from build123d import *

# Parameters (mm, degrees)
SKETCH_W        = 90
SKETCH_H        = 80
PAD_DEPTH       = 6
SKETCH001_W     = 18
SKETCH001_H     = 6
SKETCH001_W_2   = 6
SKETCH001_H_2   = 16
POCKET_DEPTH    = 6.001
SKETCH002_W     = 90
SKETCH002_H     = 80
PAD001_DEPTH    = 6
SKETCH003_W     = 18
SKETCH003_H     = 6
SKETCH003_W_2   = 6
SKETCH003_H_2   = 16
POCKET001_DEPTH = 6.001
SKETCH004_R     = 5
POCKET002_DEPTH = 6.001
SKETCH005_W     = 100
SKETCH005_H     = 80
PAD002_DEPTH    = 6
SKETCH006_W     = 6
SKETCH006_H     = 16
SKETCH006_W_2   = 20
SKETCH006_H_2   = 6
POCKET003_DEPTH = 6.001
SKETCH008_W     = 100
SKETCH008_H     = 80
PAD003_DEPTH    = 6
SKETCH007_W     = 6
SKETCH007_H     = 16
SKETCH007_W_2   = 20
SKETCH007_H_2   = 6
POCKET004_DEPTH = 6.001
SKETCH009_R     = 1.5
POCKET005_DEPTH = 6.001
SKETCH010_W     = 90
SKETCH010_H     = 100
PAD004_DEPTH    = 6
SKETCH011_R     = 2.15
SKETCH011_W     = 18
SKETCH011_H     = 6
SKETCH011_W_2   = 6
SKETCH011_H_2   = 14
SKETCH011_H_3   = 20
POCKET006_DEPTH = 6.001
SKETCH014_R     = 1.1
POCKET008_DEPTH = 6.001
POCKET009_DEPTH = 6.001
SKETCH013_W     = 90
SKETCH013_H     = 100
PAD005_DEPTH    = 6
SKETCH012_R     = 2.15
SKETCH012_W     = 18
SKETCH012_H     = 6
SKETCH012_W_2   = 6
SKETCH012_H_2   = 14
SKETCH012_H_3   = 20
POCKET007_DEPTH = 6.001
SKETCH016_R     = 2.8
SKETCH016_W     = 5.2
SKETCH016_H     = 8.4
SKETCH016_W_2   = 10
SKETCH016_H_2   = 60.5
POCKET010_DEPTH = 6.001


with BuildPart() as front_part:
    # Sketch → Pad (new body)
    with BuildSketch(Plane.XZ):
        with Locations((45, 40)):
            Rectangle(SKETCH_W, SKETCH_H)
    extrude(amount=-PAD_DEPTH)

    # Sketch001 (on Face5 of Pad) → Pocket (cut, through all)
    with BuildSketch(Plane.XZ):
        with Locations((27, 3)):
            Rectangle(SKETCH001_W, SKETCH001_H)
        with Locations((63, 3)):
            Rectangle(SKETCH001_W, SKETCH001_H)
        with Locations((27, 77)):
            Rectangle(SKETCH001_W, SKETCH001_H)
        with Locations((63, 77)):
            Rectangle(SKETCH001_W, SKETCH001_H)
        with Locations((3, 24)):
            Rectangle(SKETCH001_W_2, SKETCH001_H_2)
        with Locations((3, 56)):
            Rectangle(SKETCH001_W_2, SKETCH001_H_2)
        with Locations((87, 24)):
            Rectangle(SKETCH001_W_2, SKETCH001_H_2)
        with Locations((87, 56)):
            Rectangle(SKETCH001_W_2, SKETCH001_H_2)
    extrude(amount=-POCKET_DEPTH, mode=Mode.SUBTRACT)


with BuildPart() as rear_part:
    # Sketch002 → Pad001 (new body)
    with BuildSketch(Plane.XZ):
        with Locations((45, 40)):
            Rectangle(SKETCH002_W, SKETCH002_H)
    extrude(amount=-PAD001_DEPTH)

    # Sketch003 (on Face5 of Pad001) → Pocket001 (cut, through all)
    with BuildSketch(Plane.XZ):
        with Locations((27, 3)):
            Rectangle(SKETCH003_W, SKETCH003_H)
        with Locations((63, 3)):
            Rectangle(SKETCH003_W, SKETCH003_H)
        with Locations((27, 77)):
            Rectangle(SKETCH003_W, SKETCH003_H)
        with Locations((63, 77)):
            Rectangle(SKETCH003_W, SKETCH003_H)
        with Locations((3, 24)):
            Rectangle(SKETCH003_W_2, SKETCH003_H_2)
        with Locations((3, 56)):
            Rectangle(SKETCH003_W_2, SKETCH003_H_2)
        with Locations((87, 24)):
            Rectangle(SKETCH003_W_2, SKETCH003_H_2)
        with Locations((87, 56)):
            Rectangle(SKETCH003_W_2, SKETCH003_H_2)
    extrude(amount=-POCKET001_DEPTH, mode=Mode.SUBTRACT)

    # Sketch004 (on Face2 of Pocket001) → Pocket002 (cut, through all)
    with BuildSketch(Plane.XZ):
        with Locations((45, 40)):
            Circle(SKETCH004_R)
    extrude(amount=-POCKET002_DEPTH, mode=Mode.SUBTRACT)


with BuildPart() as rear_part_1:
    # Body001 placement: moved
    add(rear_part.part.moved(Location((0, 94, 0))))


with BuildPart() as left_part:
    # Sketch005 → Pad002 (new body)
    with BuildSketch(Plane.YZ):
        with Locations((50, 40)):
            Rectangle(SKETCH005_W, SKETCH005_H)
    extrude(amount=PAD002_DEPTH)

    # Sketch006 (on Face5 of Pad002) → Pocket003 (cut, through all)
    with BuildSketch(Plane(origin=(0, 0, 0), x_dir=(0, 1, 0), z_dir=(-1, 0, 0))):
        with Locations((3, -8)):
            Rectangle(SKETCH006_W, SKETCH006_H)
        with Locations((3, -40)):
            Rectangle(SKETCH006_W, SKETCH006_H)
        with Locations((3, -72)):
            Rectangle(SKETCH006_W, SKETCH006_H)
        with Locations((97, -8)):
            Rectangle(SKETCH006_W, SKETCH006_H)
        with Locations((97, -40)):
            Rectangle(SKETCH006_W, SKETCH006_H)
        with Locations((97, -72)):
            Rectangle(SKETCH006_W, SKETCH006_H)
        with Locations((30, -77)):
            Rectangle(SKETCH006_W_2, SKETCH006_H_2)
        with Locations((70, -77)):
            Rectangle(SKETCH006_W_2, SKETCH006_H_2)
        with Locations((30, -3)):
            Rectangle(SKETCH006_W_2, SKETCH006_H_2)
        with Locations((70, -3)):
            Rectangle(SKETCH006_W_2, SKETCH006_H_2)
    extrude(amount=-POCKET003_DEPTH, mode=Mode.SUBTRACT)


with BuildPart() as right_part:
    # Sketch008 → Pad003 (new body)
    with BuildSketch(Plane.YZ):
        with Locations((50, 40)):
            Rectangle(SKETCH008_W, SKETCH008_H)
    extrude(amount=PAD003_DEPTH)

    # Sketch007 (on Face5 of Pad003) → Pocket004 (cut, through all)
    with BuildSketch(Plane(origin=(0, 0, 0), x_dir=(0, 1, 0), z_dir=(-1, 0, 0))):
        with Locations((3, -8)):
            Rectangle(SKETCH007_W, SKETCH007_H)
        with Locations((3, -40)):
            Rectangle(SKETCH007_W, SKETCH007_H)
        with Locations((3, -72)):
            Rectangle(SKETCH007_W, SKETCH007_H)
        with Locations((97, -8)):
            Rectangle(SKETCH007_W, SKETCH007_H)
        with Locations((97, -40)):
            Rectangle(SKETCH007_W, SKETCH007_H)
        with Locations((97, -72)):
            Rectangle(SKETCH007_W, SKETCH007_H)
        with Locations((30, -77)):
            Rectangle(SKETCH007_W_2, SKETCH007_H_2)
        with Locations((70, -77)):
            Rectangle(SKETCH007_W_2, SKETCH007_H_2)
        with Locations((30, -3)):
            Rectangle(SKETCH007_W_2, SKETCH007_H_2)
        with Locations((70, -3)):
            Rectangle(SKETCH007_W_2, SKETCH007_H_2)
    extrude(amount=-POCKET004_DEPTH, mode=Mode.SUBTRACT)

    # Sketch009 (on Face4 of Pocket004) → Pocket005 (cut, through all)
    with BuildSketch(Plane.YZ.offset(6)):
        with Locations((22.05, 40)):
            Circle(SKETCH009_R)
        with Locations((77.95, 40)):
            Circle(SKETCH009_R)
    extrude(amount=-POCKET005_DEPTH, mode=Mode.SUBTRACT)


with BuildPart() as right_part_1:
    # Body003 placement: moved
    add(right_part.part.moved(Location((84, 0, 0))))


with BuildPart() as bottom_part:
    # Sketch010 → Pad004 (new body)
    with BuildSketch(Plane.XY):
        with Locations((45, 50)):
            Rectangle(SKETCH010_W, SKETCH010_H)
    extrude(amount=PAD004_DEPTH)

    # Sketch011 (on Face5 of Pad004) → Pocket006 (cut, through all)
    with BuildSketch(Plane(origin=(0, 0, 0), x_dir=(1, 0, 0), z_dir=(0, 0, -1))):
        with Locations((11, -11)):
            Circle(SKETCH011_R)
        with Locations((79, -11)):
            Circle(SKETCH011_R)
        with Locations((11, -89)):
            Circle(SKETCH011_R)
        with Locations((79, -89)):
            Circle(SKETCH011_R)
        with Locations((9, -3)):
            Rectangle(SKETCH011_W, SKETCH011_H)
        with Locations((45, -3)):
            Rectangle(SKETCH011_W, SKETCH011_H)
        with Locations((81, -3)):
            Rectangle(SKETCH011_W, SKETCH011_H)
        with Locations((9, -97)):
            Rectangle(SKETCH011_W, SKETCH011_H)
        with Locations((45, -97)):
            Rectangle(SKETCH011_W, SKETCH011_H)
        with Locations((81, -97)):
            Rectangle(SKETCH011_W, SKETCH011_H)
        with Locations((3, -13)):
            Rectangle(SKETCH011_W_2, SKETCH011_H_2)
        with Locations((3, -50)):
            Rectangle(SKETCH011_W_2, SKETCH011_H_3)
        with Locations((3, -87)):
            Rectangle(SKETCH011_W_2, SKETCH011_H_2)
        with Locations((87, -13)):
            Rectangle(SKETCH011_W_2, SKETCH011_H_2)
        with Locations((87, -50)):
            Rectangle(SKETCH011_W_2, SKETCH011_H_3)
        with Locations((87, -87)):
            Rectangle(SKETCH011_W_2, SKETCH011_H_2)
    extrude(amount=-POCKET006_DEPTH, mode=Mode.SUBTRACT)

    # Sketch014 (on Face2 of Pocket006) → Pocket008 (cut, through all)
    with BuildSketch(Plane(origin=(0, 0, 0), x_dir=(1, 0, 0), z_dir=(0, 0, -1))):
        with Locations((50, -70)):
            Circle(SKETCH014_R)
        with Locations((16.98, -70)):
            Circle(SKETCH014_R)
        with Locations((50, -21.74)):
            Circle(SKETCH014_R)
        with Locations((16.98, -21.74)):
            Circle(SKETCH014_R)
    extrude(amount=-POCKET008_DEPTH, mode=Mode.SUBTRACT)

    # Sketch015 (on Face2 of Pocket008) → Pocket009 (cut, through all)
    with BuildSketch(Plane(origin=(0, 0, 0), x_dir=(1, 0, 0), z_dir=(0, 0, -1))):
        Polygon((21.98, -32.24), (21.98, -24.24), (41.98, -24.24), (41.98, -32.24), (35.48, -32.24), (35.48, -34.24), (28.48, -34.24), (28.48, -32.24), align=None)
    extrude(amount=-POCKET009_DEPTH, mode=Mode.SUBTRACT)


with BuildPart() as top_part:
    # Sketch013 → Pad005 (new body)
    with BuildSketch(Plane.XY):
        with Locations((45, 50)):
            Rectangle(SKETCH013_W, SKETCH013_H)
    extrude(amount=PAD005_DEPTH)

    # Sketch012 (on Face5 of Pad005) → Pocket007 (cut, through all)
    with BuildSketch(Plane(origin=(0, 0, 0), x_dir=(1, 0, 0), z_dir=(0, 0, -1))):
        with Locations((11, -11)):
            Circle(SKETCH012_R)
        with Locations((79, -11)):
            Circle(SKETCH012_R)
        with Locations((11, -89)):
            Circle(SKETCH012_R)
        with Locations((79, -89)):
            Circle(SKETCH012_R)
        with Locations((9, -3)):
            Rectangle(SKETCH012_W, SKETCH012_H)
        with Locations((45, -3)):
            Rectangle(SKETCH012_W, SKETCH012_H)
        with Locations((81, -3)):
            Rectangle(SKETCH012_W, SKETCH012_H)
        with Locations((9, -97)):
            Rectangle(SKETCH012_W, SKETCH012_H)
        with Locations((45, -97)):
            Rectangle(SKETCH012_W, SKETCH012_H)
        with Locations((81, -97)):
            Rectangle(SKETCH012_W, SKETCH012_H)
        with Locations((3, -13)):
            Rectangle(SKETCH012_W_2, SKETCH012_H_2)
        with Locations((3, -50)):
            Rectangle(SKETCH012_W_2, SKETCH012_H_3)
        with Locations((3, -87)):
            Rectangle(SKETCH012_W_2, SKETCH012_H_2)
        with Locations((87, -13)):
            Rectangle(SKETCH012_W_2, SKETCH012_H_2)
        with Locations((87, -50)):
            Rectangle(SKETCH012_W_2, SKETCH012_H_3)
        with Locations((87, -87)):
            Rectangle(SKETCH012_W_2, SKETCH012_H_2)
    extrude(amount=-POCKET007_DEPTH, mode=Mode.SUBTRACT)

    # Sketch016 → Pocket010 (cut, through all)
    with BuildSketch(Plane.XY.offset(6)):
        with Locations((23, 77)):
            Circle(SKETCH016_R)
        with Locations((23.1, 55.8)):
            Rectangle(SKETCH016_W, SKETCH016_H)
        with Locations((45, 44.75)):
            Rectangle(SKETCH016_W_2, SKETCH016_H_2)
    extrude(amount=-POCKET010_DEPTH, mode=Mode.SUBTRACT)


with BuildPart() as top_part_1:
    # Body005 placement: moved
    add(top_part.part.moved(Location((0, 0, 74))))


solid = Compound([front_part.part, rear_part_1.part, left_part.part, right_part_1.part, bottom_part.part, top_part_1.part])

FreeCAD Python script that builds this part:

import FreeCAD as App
import Part
import Sketcher


def add_polygon(sketch, points):
    """Adds a closed chain of lines whose ends are joined by coincident constraints."""
    first, n = sketch.GeometryCount, len(points)
    for a, b in zip(points, points[1:] + points[:1]):
        sketch.addGeometry(Part.LineSegment(App.Vector(*a, 0), App.Vector(*b, 0)), False)
    for i in range(n):
        sketch.addConstraint(Sketcher.Constraint("Coincident", first + i, 2, first + (i + 1) % n, 1))

doc = App.newDocument("Part")
body = doc.addObject("PartDesign::Body", "Body")

sketch1 = body.newObject("Sketcher::SketchObject", "Sketch")
sketch1.AttachmentSupport = (doc.getObject("XZ_Plane"), [""])
sketch1.MapMode = "FlatFace"
add_polygon(sketch1, [(0, 80), (0, 0), (90, 0), (90, 80)])
sketch1.addConstraint([
    Sketcher.Constraint("Vertical", 0),
    Sketcher.Constraint("Horizontal", 1),
    Sketcher.Constraint("Vertical", 2),
    Sketcher.Constraint("Horizontal", 3),
    Sketcher.Constraint("Coincident", 0, 2, -1, 1),
    Sketcher.Constraint("DistanceX", 1, 1, 1, 2, 90.0),
    Sketcher.Constraint("DistanceY", 0, 2, 0, 1, 80.0),
])
pad1 = body.newObject("PartDesign::Pad", "Pad")
pad1.Profile = sketch1
pad1.Length = 6
pad1.Reversed = True

sketch2 = body.newObject("Sketcher::SketchObject", "Sketch001")
sketch2.AttachmentSupport = (doc.getObject("XZ_Plane"), [""])
sketch2.MapMode = "FlatFace"
add_polygon(sketch2, [(18, 6), (18, 0), (36, 0), (36, 6)])
add_polygon(sketch2, [(54, 6), (54, 0), (72, 0), (72, 6)])
add_polygon(sketch2, [(18, 80), (18, 74), (36, 74), (36, 80)])
add_polygon(sketch2, [(54, 80), (54, 74), (72, 74), (72, 80)])
add_polygon(sketch2, [(0, 32), (0, 16), (6, 16), (6, 32)])
add_polygon(sketch2, [(0, 64), (0, 48), (6, 48), (6, 64)])
add_polygon(sketch2, [(84, 32), (84, 16), (90, 16), (90, 32)])
add_polygon(sketch2, [(84, 64), (84, 48), (90, 48), (90, 64)])
sketch2.addConstraint([
    Sketcher.Constraint("Vertical", 0),
    Sketcher.Constraint("Horizontal", 1),
    Sketcher.Constraint("Vertical", 2),
    Sketcher.Constraint("Horizontal", 3),
    Sketcher.Constraint("Vertical", 4),
    Sketcher.Constraint("Horizontal", 5),
    Sketcher.Constraint("Vertical", 6),
    Sketcher.Constraint("Horizontal", 7),
    Sketcher.Constraint("Vertical", 8),
    Sketcher.Constraint("Horizontal", 9),
    Sketcher.Constraint("Vertical", 10),
    Sketcher.Constraint("Horizontal", 11),
    Sketcher.Constraint("Vertical", 12),
    Sketcher.Constraint("Horizontal", 13),
    Sketcher.Constraint("Vertical", 14),
    Sketcher.Constraint("Horizontal", 15),
    Sketcher.Constraint("Vertical", 16),
    Sketcher.Constraint("Horizontal", 17),
    Sketcher.Constraint("Vertical", 18),
    Sketcher.Constraint("Horizontal", 19),
    Sketcher.Constraint("Vertical", 20),
    Sketcher.Constraint("Horizontal", 21),
    Sketcher.Constraint("Vertical", 22),
    Sketcher.Constraint("Horizontal", 23),
    Sketcher.Constraint("Vertical", 24),
    Sketcher.Constraint("Horizontal", 25),
    Sketcher.Constraint("Vertical", 26),
    Sketcher.Constraint("Horizontal", 27),
    Sketcher.Constraint("Vertical", 28),
    Sketcher.Constraint("Horizontal", 29),
    Sketcher.Constraint("Vertical", 30),
    Sketcher.Constraint("Horizontal", 31),
    Sketcher.Constraint("PointOnObject", 0, 2, -1),
    Sketcher.Constraint("PointOnObject", 4, 2, -1),
    Sketcher.Constraint("PointOnObject", 16, 2, -2),
    Sketcher.Constraint("PointOnObject", 20, 2, -2),
    Sketcher.Constraint("Horizontal", 3, 2, 6, 2),
    Sketcher.Constraint("Horizontal", 9, 2, 12, 2),
    Sketcher.Constraint("Horizontal", 11, 2, 14, 2),
    Sketcher.Constraint("Horizontal", 17, 2, 24, 2),
    Sketcher.Constraint("Horizontal", 19, 2, 26, 2),
    Sketcher.Constraint("Horizontal", 21, 2, 28, 2),
    Sketcher.Constraint("Horizontal", 23, 2, 30, 2),
    Sketcher.Constraint("Vertical", 3, 2, 8, 2),
    Sketcher.Constraint("Vertical", 2, 2, 9, 2),
    Sketcher.Constraint("Vertical", 7, 2, 12, 2),
    Sketcher.Constraint("Vertical", 6, 2, 13, 2),
    Sketcher.Constraint("Vertical", 18, 2, 21, 2),
    Sketcher.Constraint("Vertical", 27, 2, 28, 2),
    Sketcher.Constraint("Vertical", 26, 2, 29, 2),
    Sketcher.Constraint("Equal", 3, 5),
    Sketcher.Constraint("Equal", 23, 25),
    Sketcher.Constraint("Equal", 31, 0),
    Sketcher.Constraint("Equal", 6, 8),
    Sketcher.Constraint("Equal", 18, 20),
    Sketcher.Constraint("DistanceX", 1, 1, 1, 2, 18.0),
    Sketcher.Constraint("DistanceX", 17, 1, 17, 2, 6.0),
    Sketcher.Constraint("DistanceY", 16, 2, 16, 1, 16.0),
    Sketcher.Constraint("DistanceX", -1, 1, 0, 2, 18.0),
    Sketcher.Constraint("DistanceX", -1, 1, 4, 2, 54.0),
    Sketcher.Constraint("DistanceY", -1, 1, 8, 2, 74.0),
    Sketcher.Constraint("DistanceY", -1, 1, 16, 2, 16.0),
    Sketcher.Constraint("DistanceY", -1, 1, 20, 2, 48.0),
    Sketcher.Constraint("DistanceX", -1, 1, 24, 2, 84.0),
])
pocket1 = body.newObject("PartDesign::Pocket", "Pocket")
pocket1.Profile = sketch2
pocket1.Type = "ThroughAll"
body2 = doc.addObject("PartDesign::Body", "Body001")

sketch3 = body2.newObject("Sketcher::SketchObject", "Sketch002")
sketch3.AttachmentSupport = (doc.getObject("XZ_Plane001"), [""])
sketch3.MapMode = "FlatFace"
add_polygon(sketch3, [(0, 80), (0, 0), (90, 0), (90, 80)])
sketch3.addConstraint([
    Sketcher.Constraint("Vertical", 0),
    Sketcher.Constraint("Horizontal", 1),
    Sketcher.Constraint("Vertical", 2),
    Sketcher.Constraint("Horizontal", 3),
    Sketcher.Constraint("Coincident", 0, 2, -1, 1),
    Sketcher.Constraint("DistanceX", 1, 1, 1, 2, 90.0),
    Sketcher.Constraint("DistanceY", 0, 2, 0, 1, 80.0),
])
pad2 = body2.newObject("PartDesign::Pad", "Pad001")
pad2.Profile = sketch3
pad2.Length = 6
pad2.Reversed = True

sketch4 = body2.newObject("Sketcher::SketchObject", "Sketch003")
sketch4.AttachmentSupport = (doc.getObject("XZ_Plane001"), [""])
sketch4.MapMode = "FlatFace"
add_polygon(sketch4, [(18, 6), (18, 0), (36, 0), (36, 6)])
add_polygon(sketch4, [(54, 6), (54, 0), (72, 0), (72, 6)])
add_polygon(sketch4, [(18, 80), (18, 74), (36, 74), (36, 80)])
add_polygon(sketch4, [(54, 80), (54, 74), (72, 74), (72, 80)])
add_polygon(sketch4, [(0, 32), (0, 16), (6, 16), (6, 32)])
add_polygon(sketch4, [(0, 64), (0, 48), (6, 48), (6, 64)])
add_polygon(sketch4, [(84, 32), (84, 16), (90, 16), (90, 32)])
add_polygon(sketch4, [(84, 64), (84, 48), (90, 48), (90, 64)])
sketch4.addConstraint([
    Sketcher.Constraint("Vertical", 0),
    Sketcher.Constraint("Horizontal", 1),
    Sketcher.Constraint("Vertical", 2),
    Sketcher.Constraint("Horizontal", 3),
    Sketcher.Constraint("Vertical", 4),
    Sketcher.Constraint("Horizontal", 5),
    Sketcher.Constraint("Vertical", 6),
    Sketcher.Constraint("Horizontal", 7),
    Sketcher.Constraint("Vertical", 8),
    Sketcher.Constraint("Horizontal", 9),
    Sketcher.Constraint("Vertical", 10),
    Sketcher.Constraint("Horizontal", 11),
    Sketcher.Constraint("Vertical", 12),
    Sketcher.Constraint("Horizontal", 13),
    Sketcher.Constraint("Vertical", 14),
    Sketcher.Constraint("Horizontal", 15),
    Sketcher.Constraint("Vertical", 16),
    Sketcher.Constraint("Horizontal", 17),
    Sketcher.Constraint("Vertical", 18),
    Sketcher.Constraint("Horizontal", 19),
    Sketcher.Constraint("Vertical", 20),
    Sketcher.Constraint("Horizontal", 21),
    Sketcher.Constraint("Vertical", 22),
    Sketcher.Constraint("Horizontal", 23),
    Sketcher.Constraint("Vertical", 24),
    Sketcher.Constraint("Horizontal", 25),
    Sketcher.Constraint("Vertical", 26),
    Sketcher.Constraint("Horizontal", 27),
    Sketcher.Constraint("Vertical", 28),
    Sketcher.Constraint("Horizontal", 29),
    Sketcher.Constraint("Vertical", 30),
    Sketcher.Constraint("Horizontal", 31),
    Sketcher.Constraint("PointOnObject", 0, 2, -1),
    Sketcher.Constraint("PointOnObject", 4, 2, -1),
    Sketcher.Constraint("PointOnObject", 16, 2, -2),
    Sketcher.Constraint("PointOnObject", 20, 2, -2),
    Sketcher.Constraint("Horizontal", 3, 2, 6, 2),
    Sketcher.Constraint("Horizontal", 9, 2, 12, 2),
    Sketcher.Constraint("Horizontal", 11, 2, 14, 2),
    Sketcher.Constraint("Horizontal", 17, 2, 24, 2),
    Sketcher.Constraint("Horizontal", 19, 2, 26, 2),
    Sketcher.Constraint("Horizontal", 21, 2, 28, 2),
    Sketcher.Constraint("Horizontal", 23, 2, 30, 2),
    Sketcher.Constraint("Vertical", 3, 2, 8, 2),
    Sketcher.Constraint("Vertical", 2, 2, 9, 2),
    Sketcher.Constraint("Vertical", 7, 2, 12, 2),
    Sketcher.Constraint("Vertical", 6, 2, 13, 2),
    Sketcher.Constraint("Vertical", 18, 2, 21, 2),
    Sketcher.Constraint("Vertical", 27, 2, 28, 2),
    Sketcher.Constraint("Vertical", 26, 2, 29, 2),
    Sketcher.Constraint("Equal", 3, 5),
    Sketcher.Constraint("Equal", 23, 25),
    Sketcher.Constraint("Equal", 31, 0),
    Sketcher.Constraint("Equal", 6, 8),
    Sketcher.Constraint("Equal", 18, 20),
    Sketcher.Constraint("DistanceX", 1, 1, 1, 2, 18.0),
    Sketcher.Constraint("DistanceX", 17, 1, 17, 2, 6.0),
    Sketcher.Constraint("DistanceY", 16, 2, 16, 1, 16.0),
    Sketcher.Constraint("DistanceX", -1, 1, 0, 2, 18.0),
    Sketcher.Constraint("DistanceX", -1, 1, 4, 2, 54.0),
    Sketcher.Constraint("DistanceY", -1, 1, 8, 2, 74.0),
    Sketcher.Constraint("DistanceY", -1, 1, 16, 2, 16.0),
    Sketcher.Constraint("DistanceY", -1, 1, 20, 2, 48.0),
    Sketcher.Constraint("DistanceX", -1, 1, 24, 2, 84.0),
])
pocket2 = body2.newObject("PartDesign::Pocket", "Pocket001")
pocket2.Profile = sketch4
pocket2.Type = "ThroughAll"

sketch5 = body2.newObject("Sketcher::SketchObject", "Sketch004")
sketch5.AttachmentSupport = (doc.getObject("XZ_Plane001"), [""])
sketch5.MapMode = "FlatFace"
sketch5.addGeometry(Part.Circle(App.Vector(45, 40, 0), App.Vector(0, 0, 1), 5), False)
sketch5.addConstraint([
    Sketcher.Constraint("Diameter", 0, 10.0),
    Sketcher.Constraint("DistanceX", -1, 1, 0, 3, 45.0),
    Sketcher.Constraint("DistanceY", -1, 1, 0, 3, 40.0),
])
pocket3 = body2.newObject("PartDesign::Pocket", "Pocket002")
pocket3.Profile = sketch5
pocket3.Type = "ThroughAll"
body3 = doc.addObject("PartDesign::Body", "Body002")
doc.recompute()

body2.Placement = App.Placement(App.Vector(0, 94, 0), App.Rotation(App.Vector(0, 0, 1), 0))
boolean = body3.newObject("PartDesign::Boolean", "Boolean")
boolean.Type = "Fuse"
boolean.addObjects([body2])
body4 = doc.addObject("PartDesign::Body", "Body003")

sketch6 = body4.newObject("Sketcher::SketchObject", "Sketch005")
sketch6.AttachmentSupport = (doc.getObject("YZ_Plane003"), [""])
sketch6.MapMode = "FlatFace"
add_polygon(sketch6, [(0, 80), (0, 0), (100, 0), (100, 80)])
sketch6.addConstraint([
    Sketcher.Constraint("Vertical", 0),
    Sketcher.Constraint("Horizontal", 1),
    Sketcher.Constraint("Vertical", 2),
    Sketcher.Constraint("Horizontal", 3),
    Sketcher.Constraint("Coincident", 0, 2, -1, 1),
    Sketcher.Constraint("DistanceX", 1, 1, 1, 2, 100.0),
    Sketcher.Constraint("DistanceY", 0, 2, 0, 1, 80.0),
])
pad3 = body4.newObject("PartDesign::Pad", "Pad002")
pad3.Profile = sketch6
pad3.Length = 6

sketch7 = body4.newObject("Sketcher::SketchObject", "Sketch006")
sketch7.AttachmentSupport = (doc.getObject("YZ_Plane003"), [""])
sketch7.MapMode = "FlatFace"
add_polygon(sketch7, [(0, 0), (0, 16), (6, 16), (6, 0)])
add_polygon(sketch7, [(0, 32), (0, 48), (6, 48), (6, 32)])
add_polygon(sketch7, [(0, 64), (0, 80), (6, 80), (6, 64)])
add_polygon(sketch7, [(94, 0), (94, 16), (100, 16), (100, 0)])
add_polygon(sketch7, [(94, 32), (94, 48), (100, 48), (100, 32)])
add_polygon(sketch7, [(94, 64), (94, 80), (100, 80), (100, 64)])
add_polygon(sketch7, [(20, 74), (20, 80), (40, 80), (40, 74)])
add_polygon(sketch7, [(60, 74), (60, 80), (80, 80), (80, 74)])
add_polygon(sketch7, [(20, 0), (20, 6), (40, 6), (40, 0)])
add_polygon(sketch7, [(60, 0), (60, 6), (80, 6), (80, 0)])
sketch7.addConstraint([
    Sketcher.Constraint("Vertical", 0),
    Sketcher.Constraint("Horizontal", 1),
    Sketcher.Constraint("Vertical", 2),
    Sketcher.Constraint("Horizontal", 3),
    Sketcher.Constraint("Vertical", 4),
    Sketcher.Constraint("Horizontal", 5),
    Sketcher.Constraint("Vertical", 6),
    Sketcher.Constraint("Horizontal", 7),
    Sketcher.Constraint("Vertical", 8),
    Sketcher.Constraint("Horizontal", 9),
    Sketcher.Constraint("Vertical", 10),
    Sketcher.Constraint("Horizontal", 11),
    Sketcher.Constraint("Vertical", 12),
    Sketcher.Constraint("Horizontal", 13),
    Sketcher.Constraint("Vertical", 14),
    Sketcher.Constraint("Horizontal", 15),
    Sketcher.Constraint("Vertical", 16),
    Sketcher.Constraint("Horizontal", 17),
    Sketcher.Constraint("Vertical", 18),
    Sketcher.Constraint("Horizontal", 19),
    Sketcher.Constraint("Vertical", 20),
    Sketcher.Constraint("Horizontal", 21),
    Sketcher.Constraint("Vertical", 22),
    Sketcher.Constraint("Horizontal", 23),
    Sketcher.Constraint("Vertical", 24),
    Sketcher.Constraint("Horizontal", 25),
    Sketcher.Constraint("Vertical", 26),
    Sketcher.Constraint("Horizontal", 27),
    Sketcher.Constraint("Vertical", 28),
    Sketcher.Constraint("Horizontal", 29),
    Sketcher.Constraint("Vertical", 30),
    Sketcher.Constraint("Horizontal", 31),
    Sketcher.Constraint("Vertical", 32),
    Sketcher.Constraint("Horizontal", 33),
    Sketcher.Constraint("Vertical", 34),
    Sketcher.Constraint("Horizontal", 35),
    Sketcher.Constraint("Vertical", 36),
    Sketcher.Constraint("Horizontal", 37),
    Sketcher.Constraint("Vertical", 38),
    Sketcher.Constraint("Horizontal", 39),
    Sketcher.Constraint("Coincident", 3, 2, -1, 1),
    Sketcher.Constraint("PointOnObject", 4, 2, -2),
    Sketcher.Constraint("PointOnObject", 8, 2, -2),
    Sketcher.Constraint("PointOnObject", 14, 2, -1),
    Sketcher.Constraint("PointOnObject", 34, 2, -1),
    Sketcher.Constraint("PointOnObject", 38, 2, -1),
    Sketcher.Constraint("Horizontal", 1, 2, 12, 2),
    Sketcher.Constraint("Horizontal", 5, 2, 16, 2),
    Sketcher.Constraint("Horizontal", 7, 2, 18, 2),
    Sketcher.Constraint("Horizontal", 9, 2, 20, 2),
    Sketcher.Constraint("Horizontal", 11, 2, 22, 2),
    Sketcher.Constraint("Horizontal", 21, 2, 24, 2),
    Sketcher.Constraint("Horizontal", 25, 2, 28, 2),
    Sketcher.Constraint("Horizontal", 27, 2, 30, 2),
    Sketcher.Constraint("Horizontal", 33, 2, 36, 2),
    Sketcher.Constraint("Vertical", 2, 2, 5, 2),
    Sketcher.Constraint("Vertical", 6, 2, 9, 2),
    Sketcher.Constraint("Vertical", 15, 2, 16, 2),
    Sketcher.Constraint("Vertical", 14, 2, 17, 2),
    Sketcher.Constraint("Vertical", 19, 2, 20, 2),
    Sketcher.Constraint("Vertical", 18, 2, 21, 2),
    Sketcher.Constraint("Vertical", 27, 2, 32, 2),
    Sketcher.Constraint("Vertical", 26, 2, 33, 2),
    Sketcher.Constraint("Vertical", 31, 2, 36, 2),
    Sketcher.Constraint("Vertical", 30, 2, 37, 2),
    Sketcher.Constraint("Equal", 11, 13),
    Sketcher.Constraint("Equal", 27, 29),
    Sketcher.Constraint("Equal", 2, 4),
    Sketcher.Constraint("Equal", 6, 8),
    Sketcher.Constraint("Equal", 23, 24),
    Sketcher.Constraint("Equal", 30, 32),
    Sketcher.Constraint("DistanceX", 1, 1, 1, 2, 6.0),
    Sketcher.Constraint("DistanceX", 25, 1, 25, 2, 20.0),
    Sketcher.Constraint("DistanceY", 0, 1, 0, 2, 16.0),
    Sketcher.Constraint("DistanceY", -1, 1, 4, 2, 48.0),
    Sketcher.Constraint("DistanceY", -1, 1, 8, 2, 80.0),
    Sketcher.Constraint("DistanceX", -1, 1, 12, 2, 94.0),
    Sketcher.Constraint("DistanceX", -1, 1, 24, 2, 20.0),
    Sketcher.Constraint("DistanceX", -1, 1, 28, 2, 60.0),
])
pocket4 = body4.newObject("PartDesign::Pocket", "Pocket003")
pocket4.Profile = sketch7
pocket4.Type = "ThroughAll"
pocket4.Reversed = True
body5 = doc.addObject("PartDesign::Body", "Body004")

sketch8 = body5.newObject("Sketcher::SketchObject", "Sketch007")
sketch8.AttachmentSupport = (doc.getObject("YZ_Plane004"), [""])
sketch8.MapMode = "FlatFace"
add_polygon(sketch8, [(0, 80), (0, 0), (100, 0), (100, 80)])
sketch8.addConstraint([
    Sketcher.Constraint("Vertical", 0),
    Sketcher.Constraint("Horizontal", 1),
    Sketcher.Constraint("Vertical", 2),
    Sketcher.Constraint("Horizontal", 3),
    Sketcher.Constraint("Coincident", 0, 2, -1, 1),
    Sketcher.Constraint("DistanceX", 1, 1, 1, 2, 100.0),
    Sketcher.Constraint("DistanceY", 0, 2, 0, 1, 80.0),
])
pad4 = body5.newObject("PartDesign::Pad", "Pad003")
pad4.Profile = sketch8
pad4.Length = 6

sketch9 = body5.newObject("Sketcher::SketchObject", "Sketch008")
sketch9.AttachmentSupport = (doc.getObject("YZ_Plane004"), [""])
sketch9.MapMode = "FlatFace"
add_polygon(sketch9, [(0, 0), (0, 16), (6, 16), (6, 0)])
add_polygon(sketch9, [(0, 32), (0, 48), (6, 48), (6, 32)])
add_polygon(sketch9, [(0, 64), (0, 80), (6, 80), (6, 64)])
add_polygon(sketch9, [(94, 0), (94, 16), (100, 16), (100, 0)])
add_polygon(sketch9, [(94, 32), (94, 48), (100, 48), (100, 32)])
add_polygon(sketch9, [(94, 64), (94, 80), (100, 80), (100, 64)])
add_polygon(sketch9, [(20, 74), (20, 80), (40, 80), (40, 74)])
add_polygon(sketch9, [(60, 74), (60, 80), (80, 80), (80, 74)])
add_polygon(sketch9, [(20, 0), (20, 6), (40, 6), (40, 0)])
add_polygon(sketch9, [(60, 0), (60, 6), (80, 6), (80, 0)])
sketch9.addConstraint([
    Sketcher.Constraint("Vertical", 0),
    Sketcher.Constraint("Horizontal", 1),
    Sketcher.Constraint("Vertical", 2),
    Sketcher.Constraint("Horizontal", 3),
    Sketcher.Constraint("Vertical", 4),
    Sketcher.Constraint("Horizontal", 5),
    Sketcher.Constraint("Vertical", 6),
    Sketcher.Constraint("Horizontal", 7),
    Sketcher.Constraint("Vertical", 8),
    Sketcher.Constraint("Horizontal", 9),
    Sketcher.Constraint("Vertical", 10),
    Sketcher.Constraint("Horizontal", 11),
    Sketcher.Constraint("Vertical", 12),
    Sketcher.Constraint("Horizontal", 13),
    Sketcher.Constraint("Vertical", 14),
    Sketcher.Constraint("Horizontal", 15),
    Sketcher.Constraint("Vertical", 16),
    Sketcher.Constraint("Horizontal", 17),
    Sketcher.Constraint("Vertical", 18),
    Sketcher.Constraint("Horizontal", 19),
    Sketcher.Constraint("Vertical", 20),
    Sketcher.Constraint("Horizontal", 21),
    Sketcher.Constraint("Vertical", 22),
    Sketcher.Constraint("Horizontal", 23),
    Sketcher.Constraint("Vertical", 24),
    Sketcher.Constraint("Horizontal", 25),
    Sketcher.Constraint("Vertical", 26),
    Sketcher.Constraint("Horizontal", 27),
    Sketcher.Constraint("Vertical", 28),
    Sketcher.Constraint("Horizontal", 29),
    Sketcher.Constraint("Vertical", 30),
    Sketcher.Constraint("Horizontal", 31),
    Sketcher.Constraint("Vertical", 32),
    Sketcher.Constraint("Horizontal", 33),
    Sketcher.Constraint("Vertical", 34),
    Sketcher.Constraint("Horizontal", 35),
    Sketcher.Constraint("Vertical", 36),
    Sketcher.Constraint("Horizontal", 37),
    Sketcher.Constraint("Vertical", 38),
    Sketcher.Constraint("Horizontal", 39),
    Sketcher.Constraint("Coincident", 3, 2, -1, 1),
    Sketcher.Constraint("PointOnObject", 4, 2, -2),
    Sketcher.Constraint("PointOnObject", 8, 2, -2),
    Sketcher.Constraint("PointOnObject", 14, 2, -1),
    Sketcher.Constraint("PointOnObject", 34, 2, -1),
    Sketcher.Constraint("PointOnObject", 38, 2, -1),
    Sketcher.Constraint("Horizontal", 1, 2, 12, 2),
    Sketcher.Constraint("Horizontal", 5, 2, 16, 2),
    Sketcher.Constraint("Horizontal", 7, 2, 18, 2),
    Sketcher.Constraint("Horizontal", 9, 2, 20, 2),
    Sketcher.Constraint("Horizontal", 11, 2, 22, 2),
    Sketcher.Constraint("Horizontal", 21, 2, 24, 2),
    Sketcher.Constraint("Horizontal", 25, 2, 28, 2),
    Sketcher.Constraint("Horizontal", 27, 2, 30, 2),
    Sketcher.Constraint("Horizontal", 33, 2, 36, 2),
    Sketcher.Constraint("Vertical", 2, 2, 5, 2),
    Sketcher.Constraint("Vertical", 6, 2, 9, 2),
    Sketcher.Constraint("Vertical", 15, 2, 16, 2),
    Sketcher.Constraint("Vertical", 14, 2, 17, 2),
    Sketcher.Constraint("Vertical", 19, 2, 20, 2),
    Sketcher.Constraint("Vertical", 18, 2, 21, 2),
    Sketcher.Constraint("Vertical", 27, 2, 32, 2),
    Sketcher.Constraint("Vertical", 26, 2, 33, 2),
    Sketcher.Constraint("Vertical", 31, 2, 36, 2),
    Sketcher.Constraint("Vertical", 30, 2, 37, 2),
    Sketcher.Constraint("Equal", 11, 13),
    Sketcher.Constraint("Equal", 27, 29),
    Sketcher.Constraint("Equal", 2, 4),
    Sketcher.Constraint("Equal", 6, 8),
    Sketcher.Constraint("Equal", 23, 24),
    Sketcher.Constraint("Equal", 30, 32),
    Sketcher.Constraint("DistanceX", 1, 1, 1, 2, 6.0),
    Sketcher.Constraint("DistanceX", 25, 1, 25, 2, 20.0),
    Sketcher.Constraint("DistanceY", 0, 1, 0, 2, 16.0),
    Sketcher.Constraint("DistanceY", -1, 1, 4, 2, 48.0),
    Sketcher.Constraint("DistanceY", -1, 1, 8, 2, 80.0),
    Sketcher.Constraint("DistanceX", -1, 1, 12, 2, 94.0),
    Sketcher.Constraint("DistanceX", -1, 1, 24, 2, 20.0),
    Sketcher.Constraint("DistanceX", -1, 1, 28, 2, 60.0),
])
pocket5 = body5.newObject("PartDesign::Pocket", "Pocket004")
pocket5.Profile = sketch9
pocket5.Type = "ThroughAll"
pocket5.Reversed = True

sketch10 = body5.newObject("Sketcher::SketchObject", "Sketch009")
sketch10.AttachmentSupport = (doc.getObject("YZ_Plane004"), [""])
sketch10.MapMode = "FlatFace"
sketch10.AttachmentOffset = App.Placement(App.Vector(0, 0, 6), App.Rotation())
sketch10.addGeometry([
    Part.Circle(App.Vector(22.05, 40, 0), App.Vector(0, 0, 1), 1.5),
    Part.Circle(App.Vector(77.95, 40, 0), App.Vector(0, 0, 1), 1.5),
], False)
sketch10.addConstraint([
    Sketcher.Constraint("Equal", 0, 1),
    Sketcher.Constraint("Horizontal", 0, 3, 1, 3),
    Sketcher.Constraint("Diameter", 0, 3.0),
    Sketcher.Constraint("DistanceY", -1, 1, 0, 3, 40.0),
    Sketcher.Constraint("DistanceX", 0, 3, 1, 3, 55.9),
    Sketcher.Constraint("DistanceX", -1, 1, 0, 3, 22.05),
])
pocket6 = body5.newObject("PartDesign::Pocket", "Pocket005")
pocket6.Profile = sketch10
pocket6.Type = "ThroughAll"
body6 = doc.addObject("PartDesign::Body", "Body005")
doc.recompute()

body5.Placement = App.Placement(App.Vector(84, 0, 0), App.Rotation(App.Vector(0, 0, 1), 0))
boolean2 = body6.newObject("PartDesign::Boolean", "Boolean001")
boolean2.Type = "Fuse"
boolean2.addObjects([body5])
body7 = doc.addObject("PartDesign::Body", "Body006")

sketch11 = body7.newObject("Sketcher::SketchObject", "Sketch010")
sketch11.AttachmentSupport = (doc.getObject("XY_Plane006"), [""])
sketch11.MapMode = "FlatFace"
add_polygon(sketch11, [(0, 100), (0, 0), (90, 0), (90, 100)])
sketch11.addConstraint([
    Sketcher.Constraint("Vertical", 0),
    Sketcher.Constraint("Horizontal", 1),
    Sketcher.Constraint("Vertical", 2),
    Sketcher.Constraint("Horizontal", 3),
    Sketcher.Constraint("Coincident", 0, 2, -1, 1),
    Sketcher.Constraint("DistanceX", 1, 1, 1, 2, 90.0),
    Sketcher.Constraint("DistanceY", 0, 2, 0, 1, 100.0),
])
pad5 = body7.newObject("PartDesign::Pad", "Pad004")
pad5.Profile = sketch11
pad5.Length = 6

sketch12 = body7.newObject("Sketcher::SketchObject", "Sketch011")
sketch12.AttachmentSupport = (doc.getObject("XY_Plane006"), [""])
sketch12.MapMode = "FlatFace"
sketch12.addGeometry(Part.Circle(App.Vector(11, 11, 0), App.Vector(0, 0, 1), 2.15), False)
sketch12.addGeometry(Part.Circle(App.Vector(79, 11, 0), App.Vector(0, 0, 1), 2.15), False)
sketch12.addGeometry(Part.Circle(App.Vector(11, 89, 0), App.Vector(0, 0, 1), 2.15), False)
sketch12.addGeometry(Part.Circle(App.Vector(79, 89, 0), App.Vector(0, 0, 1), 2.15), False)
add_polygon(sketch12, [(0, 0), (0, 20), (6, 20), (6, 6), (18, 6), (18, 0)])
add_polygon(sketch12, [(36, 0), (36, 6), (54, 6), (54, 0)])
add_polygon(sketch12, [(72, 0), (72, 6), (84, 6), (84, 20), (90, 20), (90, 0)])
add_polygon(sketch12, [(0, 100), (18, 100), (18, 94), (6, 94), (6, 80), (0, 80)])
add_polygon(sketch12, [(36, 94), (36, 100), (54, 100), (54, 94)])
add_polygon(sketch12, [(72, 94), (72, 100), (90, 100), (90, 80), (84, 80), (84, 94)])
add_polygon(sketch12, [(0, 40), (0, 60), (6, 60), (6, 40)])
add_polygon(sketch12, [(84, 40), (84, 60), (90, 60), (90, 40)])
sketch12.addConstraint([
    Sketcher.Constraint("Vertical", 4),
    Sketcher.Constraint("Horizontal", 5),
    Sketcher.Constraint("Vertical", 6),
    Sketcher.Constraint("Horizontal", 7),
    Sketcher.Constraint("Vertical", 8),
    Sketcher.Constraint("Horizontal", 9),
    Sketcher.Constraint("Vertical", 10),
    Sketcher.Constraint("Horizontal", 11),
    Sketcher.Constraint("Vertical", 12),
    Sketcher.Constraint("Horizontal", 13),
    Sketcher.Constraint("Vertical", 14),
    Sketcher.Constraint("Horizontal", 15),
    Sketcher.Constraint("Vertical", 16),
    Sketcher.Constraint("Horizontal", 17),
    Sketcher.Constraint("Vertical", 18),
    Sketcher.Constraint("Horizontal", 19),
    Sketcher.Constraint("Horizontal", 20),
    Sketcher.Constraint("Vertical", 21),
    Sketcher.Constraint("Horizontal", 22),
    Sketcher.Constraint("Vertical", 23),
    Sketcher.Constraint("Horizontal", 24),
    Sketcher.Constraint("Vertical", 25),
    Sketcher.Constraint("Vertical", 26),
    Sketcher.Constraint("Horizontal", 27),
    Sketcher.Constraint("Vertical", 28),
    Sketcher.Constraint("Horizontal", 29),
    Sketcher.Constraint("Vertical", 30),
    Sketcher.Constraint("Horizontal", 31),
    Sketcher.Constraint("Vertical", 32),
    Sketcher.Constraint("Horizontal", 33),
    Sketcher.Constraint("Vertical", 34),
    Sketcher.Constraint("Horizontal", 35),
    Sketcher.Constraint("Vertical", 36),
    Sketcher.Constraint("Horizontal", 37),
    Sketcher.Constraint("Vertical", 38),
    Sketcher.Constraint("Horizontal", 39),
    Sketcher.Constraint("Vertical", 40),
    Sketcher.Constraint("Horizontal", 41),
    Sketcher.Constraint("Vertical", 42),
    Sketcher.Constraint("Horizontal", 43),
    Sketcher.Constraint("Coincident", 9, 2, -1, 1),
    Sketcher.Constraint("Equal", 0, 1),
    Sketcher.Constraint("Equal", 1, 2),
    Sketcher.Constraint("Equal", 2, 3),
    Sketcher.Constraint("PointOnObject", 12, 2, -1),
    Sketcher.Constraint("PointOnObject", 18, 2, -1),
    Sketcher.Constraint("PointOnObject", 24, 2, -2),
    Sketcher.Constraint("PointOnObject", 36, 2, -2),
    Sketcher.Constraint("Horizontal", 0, 3, 1, 3),
    Sketcher.Constraint("Horizontal", 2, 3, 3, 3),
    Sketcher.Constraint("Horizontal", 7, 2, 10, 2),
    Sketcher.Constraint("Horizontal", 11, 2, 14, 2),
    Sketcher.Constraint("Horizontal", 5, 2, 16, 2),
    Sketcher.Constraint("Horizontal", 25, 2, 26, 2),
    Sketcher.Constraint("Horizontal", 22, 2, 28, 2),
    Sketcher.Constraint("Horizontal", 27, 2, 30, 2),
    Sketcher.Constraint("Horizontal", 24, 2, 32, 2),
    Sketcher.Constraint("Horizontal", 29, 2, 34, 2),
    Sketcher.Constraint("Horizontal", 37, 2, 40, 2),
    Sketcher.Constraint("Horizontal", 39, 2, 42, 2),
    Sketcher.Constraint("Vertical", 0, 3, 2, 3),
    Sketcher.Constraint("Vertical", 1, 3, 3, 3),
    Sketcher.Constraint("Vertical", 8, 2, 20, 2),
    Sketcher.Constraint("Vertical", 6, 2, 22, 2),
    Sketcher.Constraint("Vertical", 13, 2, 26, 2),
    Sketcher.Constraint("Vertical", 12, 2, 27, 2),
    Sketcher.Constraint("Vertical", 19, 2, 30, 2),
    Sketcher.Constraint("Vertical", 18, 2, 31, 2),
    Sketcher.Constraint("Vertical", 16, 2, 33, 2),
    Sketcher.Constraint("Vertical", 23, 2, 37, 2),
    Sketcher.Constraint("Vertical", 34, 2, 40, 2),
    Sketcher.Constraint("Vertical", 32, 2, 41, 2),
    Sketcher.Constraint("Equal", 9, 11),
    Sketcher.Constraint("Equal", 7, 15),
    Sketcher.Constraint("Equal", 5, 17),
    Sketcher.Constraint("Equal", 43, 8),
    Sketcher.Constraint("Equal", 14, 21),
    Sketcher.Constraint("Equal", 16, 23),
    Sketcher.Constraint("Equal", 32, 36),
    Sketcher.Constraint("Diameter", 0, 4.3),
    Sketcher.Constraint("DistanceX", 5, 1, 5, 2, 6.0),
    Sketcher.Constraint("DistanceX", 7, 1, 7, 2, 12.0),
    Sketcher.Constraint("DistanceY", 4, 1, 4, 2, 20.0),
    Sketcher.Constraint("DistanceX", -1, 1, 0, 3, 11.0),
    Sketcher.Constraint("DistanceY", -1, 1, 0, 3, 11.0),
    Sketcher.Constraint("DistanceX", -1, 1, 1, 3, 79.0),
    Sketcher.Constraint("DistanceY", -1, 1, 2, 3, 89.0),
    Sketcher.Constraint("DistanceX", -1, 1, 10, 2, 36.0),
    Sketcher.Constraint("DistanceX", -1, 1, 14, 2, 72.0),
    Sketcher.Constraint("DistanceY", -1, 1, 20, 2, 100.0),
    Sketcher.Constraint("DistanceY", -1, 1, 36, 2, 60.0),
])
pocket7 = body7.newObject("PartDesign::Pocket", "Pocket006")
pocket7.Profile = sketch12
pocket7.Type = "ThroughAll"
pocket7.Reversed = True

sketch13 = body7.newObject("Sketcher::SketchObject", "Sketch012")
sketch13.AttachmentSupport = (doc.getObject("XY_Plane006"), [""])
sketch13.MapMode = "FlatFace"
sketch13.addGeometry([
    Part.Circle(App.Vector(50, 70, 0), App.Vector(0, 0, 1), 1.1),
    Part.Circle(App.Vector(16.98, 70, 0), App.Vector(0, 0, 1), 1.1),
    Part.Circle(App.Vector(50, 21.74, 0), App.Vector(0, 0, 1), 1.1),
    Part.Circle(App.Vector(16.98, 21.74, 0), App.Vector(0, 0, 1), 1.1),
], False)
sketch13.addConstraint([
    Sketcher.Constraint("Equal", 0, 1),
    Sketcher.Constraint("Equal", 1, 2),
    Sketcher.Constraint("Equal", 2, 3),
    Sketcher.Constraint("Horizontal", 0, 3, 1, 3),
    Sketcher.Constraint("Horizontal", 2, 3, 3, 3),
    Sketcher.Constraint("Vertical", 0, 3, 2, 3),
    Sketcher.Constraint("Vertical", 1, 3, 3, 3),
    Sketcher.Constraint("Diameter", 0, 2.2),
    Sketcher.Constraint("DistanceX", -1, 1, 0, 3, 50.0),
    Sketcher.Constraint("DistanceY", -1, 1, 0, 3, 70.0),
    Sketcher.Constraint("DistanceX", -1, 1, 1, 3, 16.98),
    Sketcher.Constraint("DistanceY", -1, 1, 2, 3, 21.74),
])
pocket8 = body7.newObject("PartDesign::Pocket", "Pocket007")
pocket8.Profile = sketch13
pocket8.Type = "ThroughAll"
pocket8.Reversed = True

sketch14 = body7.newObject("Sketcher::SketchObject", "Sketch013")
sketch14.AttachmentSupport = (doc.getObject("XY_Plane006"), [""])
sketch14.MapMode = "FlatFace"
add_polygon(sketch14, [(21.98, 24.24), (21.98, 32.24), (28.48, 32.24), (28.48, 34.24), (35.48, 34.24), (35.48, 32.24), (41.98, 32.24), (41.98, 24.24)])
sketch14.addConstraint([
    Sketcher.Constraint("Vertical", 0),
    Sketcher.Constraint("Horizontal", 1),
    Sketcher.Constraint("Vertical", 2),
    Sketcher.Constraint("Horizontal", 3),
    Sketcher.Constraint("Vertical", 4),
    Sketcher.Constraint("Horizontal", 5),
    Sketcher.Constraint("Vertical", 6),
    Sketcher.Constraint("Horizontal", 7),
    Sketcher.Constraint("Horizontal", 1, 2, 4, 2),
    Sketcher.Constraint("Equal", 1, 5),
    Sketcher.Constraint("DistanceX", 3, 1, 3, 2, 7.0),
    Sketcher.Constraint("DistanceX", 7, 2, 7, 1, 20.0),
    Sketcher.Constraint("DistanceY", 0, 1, 0, 2, 8.0),
    Sketcher.Constraint("DistanceY", 2, 1, 2, 2, 2.0),
    Sketcher.Constraint("DistanceX", -1, 1, 0, 2, 21.98),
    Sketcher.Constraint("DistanceY", -1, 1, 0, 2, 32.24),
])
pocket9 = body7.newObject("PartDesign::Pocket", "Pocket008")
pocket9.Profile = sketch14
pocket9.Type = "ThroughAll"
pocket9.Reversed = True
body8 = doc.addObject("PartDesign::Body", "Body007")

sketch15 = body8.newObject("Sketcher::SketchObject", "Sketch014")
sketch15.AttachmentSupport = (doc.getObject("XY_Plane007"), [""])
sketch15.MapMode = "FlatFace"
add_polygon(sketch15, [(0, 100), (0, 0), (90, 0), (90, 100)])
sketch15.addConstraint([
    Sketcher.Constraint("Vertical", 0),
    Sketcher.Constraint("Horizontal", 1),
    Sketcher.Constraint("Vertical", 2),
    Sketcher.Constraint("Horizontal", 3),
    Sketcher.Constraint("Coincident", 0, 2, -1, 1),
    Sketcher.Constraint("DistanceX", 1, 1, 1, 2, 90.0),
    Sketcher.Constraint("DistanceY", 0, 2, 0, 1, 100.0),
])
pad6 = body8.newObject("PartDesign::Pad", "Pad005")
pad6.Profile = sketch15
pad6.Length = 6

sketch16 = body8.newObject("Sketcher::SketchObject", "Sketch015")
sketch16.AttachmentSupport = (doc.getObject("XY_Plane007"), [""])
sketch16.MapMode = "FlatFace"
sketch16.addGeometry(Part.Circle(App.Vector(11, 11, 0), App.Vector(0, 0, 1), 2.15), False)
sketch16.addGeometry(Part.Circle(App.Vector(79, 11, 0), App.Vector(0, 0, 1), 2.15), False)
sketch16.addGeometry(Part.Circle(App.Vector(11, 89, 0), App.Vector(0, 0, 1), 2.15), False)
sketch16.addGeometry(Part.Circle(App.Vector(79, 89, 0), App.Vector(0, 0, 1), 2.15), False)
add_polygon(sketch16, [(0, 0), (0, 20), (6, 20), (6, 6), (18, 6), (18, 0)])
add_polygon(sketch16, [(36, 0), (36, 6), (54, 6), (54, 0)])
add_polygon(sketch16, [(72, 0), (72, 6), (84, 6), (84, 20), (90, 20), (90, 0)])
add_polygon(sketch16, [(0, 100), (18, 100), (18, 94), (6, 94), (6, 80), (0, 80)])
add_polygon(sketch16, [(36, 94), (36, 100), (54, 100), (54, 94)])
add_polygon(sketch16, [(72, 94), (72, 100), (90, 100), (90, 80), (84, 80), (84, 94)])
add_polygon(sketch16, [(0, 40), (0, 60), (6, 60), (6, 40)])
add_polygon(sketch16, [(84, 40), (84, 60), (90, 60), (90, 40)])
sketch16.addConstraint([
    Sketcher.Constraint("Vertical", 4),
    Sketcher.Constraint("Horizontal", 5),
    Sketcher.Constraint("Vertical", 6),
    Sketcher.Constraint("Horizontal", 7),
    Sketcher.Constraint("Vertical", 8),
    Sketcher.Constraint("Horizontal", 9),
    Sketcher.Constraint("Vertical", 10),
    Sketcher.Constraint("Horizontal", 11),
    Sketcher.Constraint("Vertical", 12),
    Sketcher.Constraint("Horizontal", 13),
    Sketcher.Constraint("Vertical", 14),
    Sketcher.Constraint("Horizontal", 15),
    Sketcher.Constraint("Vertical", 16),
    Sketcher.Constraint("Horizontal", 17),
    Sketcher.Constraint("Vertical", 18),
    Sketcher.Constraint("Horizontal", 19),
    Sketcher.Constraint("Horizontal", 20),
    Sketcher.Constraint("Vertical", 21),
    Sketcher.Constraint("Horizontal", 22),
    Sketcher.Constraint("Vertical", 23),
    Sketcher.Constraint("Horizontal", 24),
    Sketcher.Constraint("Vertical", 25),
    Sketcher.Constraint("Vertical", 26),
    Sketcher.Constraint("Horizontal", 27),
    Sketcher.Constraint("Vertical", 28),
    Sketcher.Constraint("Horizontal", 29),
    Sketcher.Constraint("Vertical", 30),
    Sketcher.Constraint("Horizontal", 31),
    Sketcher.Constraint("Vertical", 32),
    Sketcher.Constraint("Horizontal", 33),
    Sketcher.Constraint("Vertical", 34),
    Sketcher.Constraint("Horizontal", 35),
    Sketcher.Constraint("Vertical", 36),
    Sketcher.Constraint("Horizontal", 37),
    Sketcher.Constraint("Vertical", 38),
    Sketcher.Constraint("Horizontal", 39),
    Sketcher.Constraint("Vertical", 40),
    Sketcher.Constraint("Horizontal", 41),
    Sketcher.Constraint("Vertical", 42),
    Sketcher.Constraint("Horizontal", 43),
    Sketcher.Constraint("Coincident", 9, 2, -1, 1),
    Sketcher.Constraint("Equal", 0, 1),
    Sketcher.Constraint("Equal", 1, 2),
    Sketcher.Constraint("Equal", 2, 3),
    Sketcher.Constraint("PointOnObject", 12, 2, -1),
    Sketcher.Constraint("PointOnObject", 18, 2, -1),
    Sketcher.Constraint("PointOnObject", 24, 2, -2),
    Sketcher.Constraint("PointOnObject", 36, 2, -2),
    Sketcher.Constraint("Horizontal", 0, 3, 1, 3),
    Sketcher.Constraint("Horizontal", 2, 3, 3, 3),
    Sketcher.Constraint("Horizontal", 7, 2, 10, 2),
    Sketcher.Constraint("Horizontal", 11, 2, 14, 2),
    Sketcher.Constraint("Horizontal", 5, 2, 16, 2),
    Sketcher.Constraint("Horizontal", 25, 2, 26, 2),
    Sketcher.Constraint("Horizontal", 22, 2, 28, 2),
    Sketcher.Constraint("Horizontal", 27, 2, 30, 2),
    Sketcher.Constraint("Horizontal", 24, 2, 32, 2),
    Sketcher.Constraint("Horizontal", 29, 2, 34, 2),
    Sketcher.Constraint("Horizontal", 37, 2, 40, 2),
    Sketcher.Constraint("Horizontal", 39, 2, 42, 2),
    Sketcher.Constraint("Vertical", 0, 3, 2, 3),
    Sketcher.Constraint("Vertical", 1, 3, 3, 3),
    Sketcher.Constraint("Vertical", 8, 2, 20, 2),
    Sketcher.Constraint("Vertical", 6, 2, 22, 2),
    Sketcher.Constraint("Vertical", 13, 2, 26, 2),
    Sketcher.Constraint("Vertical", 12, 2, 27, 2),
    Sketcher.Constraint("Vertical", 19, 2, 30, 2),
    Sketcher.Constraint("Vertical", 18, 2, 31, 2),
    Sketcher.Constraint("Vertical", 16, 2, 33, 2),
    Sketcher.Constraint("Vertical", 23, 2, 37, 2),
    Sketcher.Constraint("Vertical", 34, 2, 40, 2),
    Sketcher.Constraint("Vertical", 32, 2, 41, 2),
    Sketcher.Constraint("Equal", 9, 11),
    Sketcher.Constraint("Equal", 7, 15),
    Sketcher.Constraint("Equal", 5, 17),
    Sketcher.Constraint("Equal", 43, 8),
    Sketcher.Constraint("Equal", 14, 21),
    Sketcher.Constraint("Equal", 16, 23),
    Sketcher.Constraint("Equal", 32, 36),
    Sketcher.Constraint("Diameter", 0, 4.3),
    Sketcher.Constraint("DistanceX", 5, 1, 5, 2, 6.0),
    Sketcher.Constraint("DistanceX", 7, 1, 7, 2, 12.0),
    Sketcher.Constraint("DistanceY", 4, 1, 4, 2, 20.0),
    Sketcher.Constraint("DistanceX", -1, 1, 0, 3, 11.0),
    Sketcher.Constraint("DistanceY", -1, 1, 0, 3, 11.0),
    Sketcher.Constraint("DistanceX", -1, 1, 1, 3, 79.0),
    Sketcher.Constraint("DistanceY", -1, 1, 2, 3, 89.0),
    Sketcher.Constraint("DistanceX", -1, 1, 10, 2, 36.0),
    Sketcher.Constraint("DistanceX", -1, 1, 14, 2, 72.0),
    Sketcher.Constraint("DistanceY", -1, 1, 20, 2, 100.0),
    Sketcher.Constraint("DistanceY", -1, 1, 36, 2, 60.0),
])
pocket10 = body8.newObject("PartDesign::Pocket", "Pocket009")
pocket10.Profile = sketch16
pocket10.Type = "ThroughAll"
pocket10.Reversed = True

sketch17 = body8.newObject("Sketcher::SketchObject", "Sketch016")
sketch17.AttachmentSupport = (doc.getObject("XY_Plane007"), [""])
sketch17.MapMode = "FlatFace"
sketch17.AttachmentOffset = App.Placement(App.Vector(0, 0, 6), App.Rotation())
sketch17.addGeometry(Part.Circle(App.Vector(23, 77, 0), App.Vector(0, 0, 1), 2.8), False)
add_polygon(sketch17, [(20.5, 60), (20.5, 51.6), (25.7, 51.6), (25.7, 60)])
add_polygon(sketch17, [(40, 75), (40, 14.5), (50, 14.5), (50, 75)])
sketch17.addConstraint([
    Sketcher.Constraint("Vertical", 1),
    Sketcher.Constraint("Horizontal", 2),
    Sketcher.Constraint("Vertical", 3),
    Sketcher.Constraint("Horizontal", 4),
    Sketcher.Constraint("Vertical", 5),
    Sketcher.Constraint("Horizontal", 6),
    Sketcher.Constraint("Vertical", 7),
    Sketcher.Constraint("Horizontal", 8),
    Sketcher.Constraint("Diameter", 0, 5.6),
    Sketcher.Constraint("DistanceX", 6, 1, 6, 2, 10.0),
    Sketcher.Constraint("DistanceX", 2, 1, 2, 2, 5.2),
    Sketcher.Constraint("DistanceY", 1, 2, 1, 1, 8.4),
    Sketcher.Constraint("DistanceY", 5, 2, 5, 1, 60.5),
    Sketcher.Constraint("DistanceX", -1, 1, 0, 3, 23.0),
    Sketcher.Constraint("DistanceY", -1, 1, 0, 3, 77.0),
    Sketcher.Constraint("DistanceY", -1, 1, 3, 2, 60.0),
    Sketcher.Constraint("DistanceX", -1, 1, 5, 2, 40.0),
    Sketcher.Constraint("DistanceY", -1, 1, 7, 2, 75.0),
    Sketcher.Constraint("DistanceX", -1, 1, 1, 2, 20.5),
])
pocket11 = body8.newObject("PartDesign::Pocket", "Pocket010")
pocket11.Profile = sketch17
pocket11.Type = "ThroughAll"
body9 = doc.addObject("PartDesign::Body", "Body008")
doc.recompute()

body8.Placement = App.Placement(App.Vector(0, 0, 74), App.Rotation(App.Vector(0, 0, 1), 0))
boolean3 = body9.newObject("PartDesign::Boolean", "Boolean002")
boolean3.Type = "Fuse"
boolean3.addObjects([body8])

doc.recompute()
